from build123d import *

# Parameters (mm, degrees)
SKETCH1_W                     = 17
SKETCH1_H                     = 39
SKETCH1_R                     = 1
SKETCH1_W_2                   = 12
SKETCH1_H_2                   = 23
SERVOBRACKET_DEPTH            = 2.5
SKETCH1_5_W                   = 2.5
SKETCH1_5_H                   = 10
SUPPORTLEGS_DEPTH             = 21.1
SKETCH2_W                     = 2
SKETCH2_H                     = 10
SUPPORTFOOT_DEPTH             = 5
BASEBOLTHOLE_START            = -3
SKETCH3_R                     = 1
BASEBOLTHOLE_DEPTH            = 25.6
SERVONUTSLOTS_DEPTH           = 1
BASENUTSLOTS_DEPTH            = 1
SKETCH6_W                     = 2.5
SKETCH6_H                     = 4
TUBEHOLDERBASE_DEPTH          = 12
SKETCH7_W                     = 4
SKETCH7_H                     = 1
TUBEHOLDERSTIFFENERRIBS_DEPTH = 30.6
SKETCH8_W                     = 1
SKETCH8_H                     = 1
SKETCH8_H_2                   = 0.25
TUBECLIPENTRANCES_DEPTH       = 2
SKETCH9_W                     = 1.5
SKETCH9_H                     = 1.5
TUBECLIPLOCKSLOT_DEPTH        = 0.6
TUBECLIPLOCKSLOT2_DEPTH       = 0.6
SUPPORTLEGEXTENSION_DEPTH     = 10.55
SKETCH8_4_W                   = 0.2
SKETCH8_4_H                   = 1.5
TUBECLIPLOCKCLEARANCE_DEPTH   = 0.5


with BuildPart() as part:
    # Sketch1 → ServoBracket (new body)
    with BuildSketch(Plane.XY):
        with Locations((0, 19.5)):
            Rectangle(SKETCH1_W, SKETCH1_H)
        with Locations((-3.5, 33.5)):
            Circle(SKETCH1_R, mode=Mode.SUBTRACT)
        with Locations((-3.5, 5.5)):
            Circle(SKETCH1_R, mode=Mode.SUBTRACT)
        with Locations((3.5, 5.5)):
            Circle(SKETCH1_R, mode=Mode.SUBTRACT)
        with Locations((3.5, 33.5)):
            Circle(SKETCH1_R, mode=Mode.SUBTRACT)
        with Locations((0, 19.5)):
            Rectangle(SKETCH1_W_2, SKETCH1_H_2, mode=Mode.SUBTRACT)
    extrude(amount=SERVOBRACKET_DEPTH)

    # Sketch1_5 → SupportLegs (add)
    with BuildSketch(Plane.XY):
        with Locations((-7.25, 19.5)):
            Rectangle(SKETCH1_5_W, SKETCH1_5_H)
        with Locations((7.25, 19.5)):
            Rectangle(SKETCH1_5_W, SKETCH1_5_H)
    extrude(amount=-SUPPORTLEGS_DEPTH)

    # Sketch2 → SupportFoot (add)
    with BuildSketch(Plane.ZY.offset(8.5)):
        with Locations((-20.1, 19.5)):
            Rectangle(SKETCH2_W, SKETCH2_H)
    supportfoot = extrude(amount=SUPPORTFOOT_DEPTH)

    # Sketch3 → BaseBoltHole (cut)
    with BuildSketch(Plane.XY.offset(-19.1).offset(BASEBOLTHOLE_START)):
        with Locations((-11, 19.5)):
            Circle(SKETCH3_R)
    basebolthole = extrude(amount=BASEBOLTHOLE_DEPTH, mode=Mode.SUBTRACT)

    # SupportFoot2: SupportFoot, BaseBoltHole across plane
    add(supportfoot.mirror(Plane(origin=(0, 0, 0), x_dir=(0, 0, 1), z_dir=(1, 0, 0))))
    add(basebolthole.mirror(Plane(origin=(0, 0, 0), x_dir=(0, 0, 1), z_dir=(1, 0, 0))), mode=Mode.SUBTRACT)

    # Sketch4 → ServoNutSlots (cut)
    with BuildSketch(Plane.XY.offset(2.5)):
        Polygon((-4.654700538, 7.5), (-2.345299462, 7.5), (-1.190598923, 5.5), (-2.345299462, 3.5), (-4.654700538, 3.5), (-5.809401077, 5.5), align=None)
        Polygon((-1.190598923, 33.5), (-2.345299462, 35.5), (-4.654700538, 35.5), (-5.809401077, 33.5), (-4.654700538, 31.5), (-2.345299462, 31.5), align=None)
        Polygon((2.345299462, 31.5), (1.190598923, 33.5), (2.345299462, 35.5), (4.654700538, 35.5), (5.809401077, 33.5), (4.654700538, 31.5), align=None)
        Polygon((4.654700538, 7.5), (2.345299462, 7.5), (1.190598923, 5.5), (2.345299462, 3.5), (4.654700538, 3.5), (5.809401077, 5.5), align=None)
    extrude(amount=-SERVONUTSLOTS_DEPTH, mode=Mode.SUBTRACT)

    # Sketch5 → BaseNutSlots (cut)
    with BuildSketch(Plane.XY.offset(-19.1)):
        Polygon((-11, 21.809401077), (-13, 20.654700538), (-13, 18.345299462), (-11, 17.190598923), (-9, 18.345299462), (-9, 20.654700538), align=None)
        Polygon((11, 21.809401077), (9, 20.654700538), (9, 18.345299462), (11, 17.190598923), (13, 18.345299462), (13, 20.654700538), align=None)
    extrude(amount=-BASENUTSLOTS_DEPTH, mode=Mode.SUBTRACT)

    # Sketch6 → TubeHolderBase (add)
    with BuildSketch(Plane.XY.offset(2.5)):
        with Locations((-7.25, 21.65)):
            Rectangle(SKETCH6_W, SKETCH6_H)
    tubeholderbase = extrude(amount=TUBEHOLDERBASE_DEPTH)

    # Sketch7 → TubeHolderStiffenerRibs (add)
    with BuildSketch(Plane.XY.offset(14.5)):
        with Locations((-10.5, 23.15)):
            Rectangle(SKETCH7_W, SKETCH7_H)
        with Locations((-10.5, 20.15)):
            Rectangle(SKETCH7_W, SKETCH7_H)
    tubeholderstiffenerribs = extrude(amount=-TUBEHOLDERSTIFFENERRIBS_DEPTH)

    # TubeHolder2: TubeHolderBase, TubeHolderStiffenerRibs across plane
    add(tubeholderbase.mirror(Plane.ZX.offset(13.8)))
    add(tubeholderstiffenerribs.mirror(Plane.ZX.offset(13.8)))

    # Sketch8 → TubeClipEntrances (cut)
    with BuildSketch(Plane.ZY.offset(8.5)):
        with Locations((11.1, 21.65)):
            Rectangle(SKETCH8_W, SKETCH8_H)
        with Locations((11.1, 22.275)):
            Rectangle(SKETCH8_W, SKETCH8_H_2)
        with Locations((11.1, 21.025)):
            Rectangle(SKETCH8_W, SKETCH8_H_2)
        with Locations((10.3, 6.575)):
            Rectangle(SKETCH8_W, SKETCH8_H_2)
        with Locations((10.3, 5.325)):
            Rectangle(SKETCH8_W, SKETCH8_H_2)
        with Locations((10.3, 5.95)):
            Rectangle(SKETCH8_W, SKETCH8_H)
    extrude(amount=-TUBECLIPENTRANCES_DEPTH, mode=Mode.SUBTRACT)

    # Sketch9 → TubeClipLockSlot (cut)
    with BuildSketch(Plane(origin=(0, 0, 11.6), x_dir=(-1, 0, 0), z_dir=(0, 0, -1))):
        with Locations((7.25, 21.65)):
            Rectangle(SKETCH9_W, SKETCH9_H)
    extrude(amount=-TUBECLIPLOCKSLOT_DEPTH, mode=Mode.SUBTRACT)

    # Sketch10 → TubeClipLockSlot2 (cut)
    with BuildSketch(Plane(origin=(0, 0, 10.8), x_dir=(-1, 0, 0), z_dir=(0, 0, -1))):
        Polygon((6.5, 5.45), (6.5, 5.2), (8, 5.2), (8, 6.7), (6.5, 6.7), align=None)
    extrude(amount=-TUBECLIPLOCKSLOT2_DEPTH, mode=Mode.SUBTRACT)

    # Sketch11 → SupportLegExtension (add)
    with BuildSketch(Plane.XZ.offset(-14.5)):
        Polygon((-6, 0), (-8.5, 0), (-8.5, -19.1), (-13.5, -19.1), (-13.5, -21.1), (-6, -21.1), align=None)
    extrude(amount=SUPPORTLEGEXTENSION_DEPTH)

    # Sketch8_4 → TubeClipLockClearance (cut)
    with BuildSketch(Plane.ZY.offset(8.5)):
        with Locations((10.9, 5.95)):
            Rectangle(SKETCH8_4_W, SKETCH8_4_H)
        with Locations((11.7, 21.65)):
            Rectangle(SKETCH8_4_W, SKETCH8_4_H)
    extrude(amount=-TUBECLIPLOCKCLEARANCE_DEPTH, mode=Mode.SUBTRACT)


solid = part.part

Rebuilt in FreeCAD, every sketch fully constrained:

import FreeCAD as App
import Part
import Sketcher
Q = App.Units.Quantity

doc = App.newDocument("Part")
body = doc.addObject("PartDesign::Body", "Body")

# Sketch on XY plane
sketch1 = doc.addObject("Sketcher::SketchObject", "Sketch")
body.addObject(sketch1)
sketch1.AttachmentSupport = (doc.XY_Plane, [""])
sketch1.MapMode = "FlatFace"
sketch1.addGeometry([
    Part.LineSegment(App.Vector(-8.5, 39, 0), App.Vector(-8.5, 0, 0)),  # 0
    Part.LineSegment(App.Vector(-8.5, 0, 0), App.Vector(8.5, 0, 0)),  # 1
    Part.LineSegment(App.Vector(8.5, 0, 0), App.Vector(8.5, 39, 0)),  # 2
    Part.LineSegment(App.Vector(8.5, 39, 0), App.Vector(-8.5, 39, 0)),  # 3
    Part.Circle(App.Vector(-3.5, 5.5, 0), App.Vector(0, 0, 1), 1),  # 4
    Part.Circle(App.Vector(3.5, 5.5, 0), App.Vector(0, 0, 1), 1),  # 5
    Part.Circle(App.Vector(-3.5, 33.5, 0), App.Vector(0, 0, 1), 1),  # 6
    Part.LineSegment(App.Vector(6, 8, 0), App.Vector(-6, 8, 0)),  # 7
    Part.LineSegment(App.Vector(-6, 8, 0), App.Vector(-6, 31, 0)),  # 8
    Part.LineSegment(App.Vector(-6, 31, 0), App.Vector(6, 31, 0)),  # 9
    Part.LineSegment(App.Vector(6, 31, 0), App.Vector(6, 8, 0)),  # 10
    Part.Circle(App.Vector(3.5, 33.5, 0), App.Vector(0, 0, 1), 1),  # 11
], False)
sketch1.addConstraint([
    Sketcher.Constraint("Coincident", 0, 2, 1, 1),
    Sketcher.Constraint("Coincident", 1, 2, 2, 1),
    Sketcher.Constraint("Coincident", 2, 2, 3, 1),
    Sketcher.Constraint("Coincident", 3, 2, 0, 1),
    Sketcher.Constraint("Coincident", 7, 2, 8, 1),
    Sketcher.Constraint("Coincident", 8, 2, 9, 1),
    Sketcher.Constraint("Coincident", 9, 2, 10, 1),
    Sketcher.Constraint("Coincident", 10, 2, 7, 1),
    Sketcher.Constraint("Vertical", 0),
    Sketcher.Constraint("Horizontal", 1),
    Sketcher.Constraint("Vertical", 2),
    Sketcher.Constraint("Horizontal", 3),
    Sketcher.Constraint("Horizontal", 7),
    Sketcher.Constraint("Vertical", 8),
    Sketcher.Constraint("Horizontal", 9),
    Sketcher.Constraint("Vertical", 10),
    Sketcher.Constraint("Equal", 4, 5),
    Sketcher.Constraint("Equal", 5, 6),
    Sketcher.Constraint("Equal", 6, 11),
    Sketcher.Constraint("Symmetric", 0, 2, 1, 2, -1, 1),
    Sketcher.Constraint("Symmetric", 4, 3, 5, 3, -2),
    Sketcher.Constraint("Symmetric", 6, 3, 11, 3, -2),
    Sketcher.Constraint("Vertical", 4, 3, 6, 3),
    Sketcher.Constraint("Diameter", 4, Q("2 mm")),
    Sketcher.Constraint("DistanceX", 1, 1, 1, 2, Q("17 mm")),
    Sketcher.Constraint("DistanceX", 7, 2, 7, 1, Q("12 mm")),
    Sketcher.Constraint("DistanceY", 0, 2, 0, 1, Q("39 mm")),
    Sketcher.Constraint("DistanceY", 8, 1, 8, 2, Q("23 mm")),
    Sketcher.Constraint("DistanceX", 7, 2, -1, 1, Q("6 mm")),
    Sketcher.Constraint("DistanceY", -1, 1, 7, 2, Q("8 mm")),
    Sketcher.Constraint("DistanceX", 4, 3, 5, 3, Q("7 mm")),
    Sketcher.Constraint("DistanceY", 4, 3, 6, 3, Q("28 mm")),
    Sketcher.Constraint("DistanceY", -1, 1, 4, 3, Q("5.5 mm")),
])
pad1 = doc.addObject("PartDesign::Pad", "Pad")
body.addObject(pad1)
pad1.Profile = sketch1
pad1.Length = 2.5

# Sketch on XY plane
sketch2 = doc.addObject("Sketcher::SketchObject", "Sketch001")
body.addObject(sketch2)
sketch2.AttachmentSupport = (doc.XY_Plane, [""])
sketch2.MapMode = "FlatFace"
sketch2.addGeometry([
    Part.LineSegment(App.Vector(-8.5, 24.5, 0), App.Vector(-8.5, 14.5, 0)),  # 0
    Part.LineSegment(App.Vector(-8.5, 14.5, 0), App.Vector(-6, 14.5, 0)),  # 1
    Part.LineSegment(App.Vector(-6, 14.5, 0), App.Vector(-6, 24.5, 0)),  # 2
    Part.LineSegment(App.Vector(-6, 24.5, 0), App.Vector(-8.5, 24.5, 0)),  # 3
    Part.LineSegment(App.Vector(6, 24.5, 0), App.Vector(6, 14.5, 0)),  # 4
    Part.LineSegment(App.Vector(6, 14.5, 0), App.Vector(8.5, 14.5, 0)),  # 5
    Part.LineSegment(App.Vector(8.5, 14.5, 0), App.Vector(8.5, 24.5, 0)),  # 6
    Part.LineSegment(App.Vector(8.5, 24.5, 0), App.Vector(6, 24.5, 0)),  # 7
], False)
sketch2.addConstraint([
    Sketcher.Constraint("Coincident", 0, 2, 1, 1),
    Sketcher.Constraint("Coincident", 1, 2, 2, 1),
    Sketcher.Constraint("Coincident", 2, 2, 3, 1),
    Sketcher.Constraint("Coincident", 3, 2, 0, 1),
    Sketcher.Constraint("Coincident", 4, 2, 5, 1),
    Sketcher.Constraint("Coincident", 5, 2, 6, 1),
    Sketcher.Constraint("Coincident", 6, 2, 7, 1),
    Sketcher.Constraint("Coincident", 7, 2, 4, 1),
    Sketcher.Constraint("Vertical", 0),
    Sketcher.Constraint("Horizontal", 1),
    Sketcher.Constraint("Vertical", 2),
    Sketcher.Constraint("Horizontal", 3),
    Sketcher.Constraint("Vertical", 4),
    Sketcher.Constraint("Horizontal", 5),
    Sketcher.Constraint("Vertical", 6),
    Sketcher.Constraint("Horizontal", 7),
    Sketcher.Constraint("Symmetric", 1, 2, 4, 2, -2),
    Sketcher.Constraint("Symmetric", 3, 2, 6, 2, -2),
    Sketcher.Constraint("DistanceY", 0, 2, 0, 1, Q("10 mm")),
    Sketcher.Constraint("DistanceX", 1, 1, 1, 2, Q("2.5 mm")),
    Sketcher.Constraint("DistanceX", 1, 2, -1, 1, Q("6 mm")),
    Sketcher.Constraint("DistanceY", -1, 1, 0, 2, Q("14.5 mm")),
])
pad2 = doc.addObject("PartDesign::Pad", "Pad001")
body.addObject(pad2)
pad2.Profile = sketch2
pad2.Length = 21.1
pad2.Reversed = True

# Sketch on YZ plane
sketch3 = doc.addObject("Sketcher::SketchObject", "Sketch002")
body.addObject(sketch3)
sketch3.AttachmentSupport = (doc.YZ_Plane, [""])
sketch3.MapMode = "FlatFace"
sketch3.AttachmentOffset = App.Placement(App.Vector(0, 0, -8.5), App.Rotation())
sketch3.addGeometry([
    Part.LineSegment(App.Vector(24.5, -21.1, 0), App.Vector(14.5, -21.1, 0)),
    Part.LineSegment(App.Vector(14.5, -21.1, 0), App.Vector(14.5, -19.1, 0)),
    Part.LineSegment(App.Vector(14.5, -19.1, 0), App.Vector(24.5, -19.1, 0)),
    Part.LineSegment(App.Vector(24.5, -19.1, 0), App.Vector(24.5, -21.1, 0)),
], False)
sketch3.addConstraint([
    Sketcher.Constraint("Coincident", 0, 2, 1, 1),
    Sketcher.Constraint("Coincident", 1, 2, 2, 1),
    Sketcher.Constraint("Coincident", 2, 2, 3, 1),
    Sketcher.Constraint("Coincident", 3, 2, 0, 1),
    Sketcher.Constraint("Horizontal", 0),
    Sketcher.Constraint("Vertical", 1),
    Sketcher.Constraint("Horizontal", 2),
    Sketcher.Constraint("Vertical", 3),
    Sketcher.Constraint("DistanceX", 0, 2, 0, 1, Q("10 mm")),
    Sketcher.Constraint("DistanceY", 1, 1, 1, 2, Q("2 mm")),
    Sketcher.Constraint("DistanceX", -1, 1, 0, 2, Q("14.5 mm")),
    Sketcher.Constraint("DistanceY", 0, 2, -1, 1, Q("21.1 mm")),
])
pad3 = doc.addObject("PartDesign::Pad", "Pad002")
body.addObject(pad3)
pad3.Profile = sketch3
pad3.Length = 5
pad3.Reversed = True

# Sketch on XY plane
sketch4 = doc.addObject("Sketcher::SketchObject", "Sketch003")
body.addObject(sketch4)
sketch4.AttachmentSupport = (doc.XY_Plane, [""])
sketch4.MapMode = "FlatFace"
sketch4.AttachmentOffset = App.Placement(App.Vector(0, 0, -22.1), App.Rotation())
sketch4.addGeometry(Part.Circle(App.Vector(-11, 19.5, 0), App.Vector(0, 0, 1), 1), False)
sketch4.addConstraint([
    Sketcher.Constraint("Diameter", 0, Q("2 mm")),
    Sketcher.Constraint("DistanceX", 0, 3, -1, 1, Q("11 mm")),
    Sketcher.Constraint("DistanceY", -1, 1, 0, 3, Q("19.5 mm")),
])
pocket1 = doc.addObject("PartDesign::Pocket", "Pocket")
body.addObject(pocket1)
pocket1.Profile = sketch4
pocket1.Length = 25.6
pocket1.Reversed = True
doc.recompute()

mirrored = doc.addObject("PartDesign::Mirrored", "Mirrored")
body.addObject(mirrored)
mirrored.Originals = [pad3, pocket1]
mirrored.MirrorPlane = (doc.YZ_Plane, [""])
body.Tip = mirrored

# Sketch on XY plane
sketch5 = doc.addObject("Sketcher::SketchObject", "Sketch004")
body.addObject(sketch5)
sketch5.AttachmentSupport = (doc.XY_Plane, [""])
sketch5.MapMode = "FlatFace"
sketch5.AttachmentOffset = App.Placement(App.Vector(0, 0, 2.5), App.Rotation())
sketch5.addGeometry([
    Part.LineSegment(App.Vector(-2.345299, 7.5, 0), App.Vector(-4.654701, 7.5, 0)),  # 0
    Part.LineSegment(App.Vector(-4.654701, 7.5, 0), App.Vector(-5.809401, 5.5, 0)),  # 1
    Part.LineSegment(App.Vector(-5.809401, 5.5, 0), App.Vector(-4.654701, 3.5, 0)),  # 2
    Part.LineSegment(App.Vector(-4.654701, 3.5, 0), App.Vector(-2.345299, 3.5, 0)),  # 3
    Part.LineSegment(App.Vector(-2.345299, 3.5, 0), App.Vector(-1.190599, 5.5, 0)),  # 4
    Part.LineSegment(App.Vector(-1.190599, 5.5, 0), App.Vector(-2.345299, 7.5, 0)),  # 5
    Part.LineSegment(App.Vector(-1.190599, 33.5, 0), App.Vector(-2.345299, 35.5, 0)),  # 6
    Part.LineSegment(App.Vector(-2.345299, 35.5, 0), App.Vector(-4.654701, 35.5, 0)),  # 7
    Part.LineSegment(App.Vector(-4.654701, 35.5, 0), App.Vector(-5.809401, 33.5, 0)),  # 8
    Part.LineSegment(App.Vector(-5.809401, 33.5, 0), App.Vector(-4.654701, 31.5, 0)),  # 9
    Part.LineSegment(App.Vector(-4.654701, 31.5, 0), App.Vector(-2.345299, 31.5, 0)),  # 10
    Part.LineSegment(App.Vector(-2.345299, 31.5, 0), App.Vector(-1.190599, 33.5, 0)),  # 11
    Part.LineSegment(App.Vector(1.190599, 33.5, 0), App.Vector(2.345299, 31.5, 0)),  # 12
    Part.LineSegment(App.Vector(2.345299, 31.5, 0), App.Vector(4.654701, 31.5, 0)),  # 13
    Part.LineSegment(App.Vector(4.654701, 31.5, 0), App.Vector(5.809401, 33.5, 0)),  # 14
    Part.LineSegment(App.Vector(5.809401, 33.5, 0), App.Vector(4.654701, 35.5, 0)),  # 15
    Part.LineSegment(App.Vector(4.654701, 35.5, 0), App.Vector(2.345299, 35.5, 0)),  # 16
    Part.LineSegment(App.Vector(2.345299, 35.5, 0), App.Vector(1.190599, 33.5, 0)),  # 17
    Part.LineSegment(App.Vector(4.654701, 7.5, 0), App.Vector(2.345299, 7.5, 0)),  # 18
    Part.LineSegment(App.Vector(2.345299, 7.5, 0), App.Vector(1.190599, 5.5, 0)),  # 19
    Part.LineSegment(App.Vector(1.190599, 5.5, 0), App.Vector(2.345299, 3.5, 0)),  # 20
    Part.LineSegment(App.Vector(2.345299, 3.5, 0), App.Vector(4.654701, 3.5, 0)),  # 21
    Part.LineSegment(App.Vector(4.654701, 3.5, 0), App.Vector(5.809401, 5.5, 0)),  # 22
    Part.LineSegment(App.Vector(5.809401, 5.5, 0), App.Vector(4.654701, 7.5, 0)),  # 23
], False)
sketch5.addConstraint([
    Sketcher.Constraint("Coincident", 0, 2, 1, 1),
    Sketcher.Constraint("Coincident", 1, 2, 2, 1),
    Sketcher.Constraint("Coincident", 2, 2, 3, 1),
    Sketcher.Constraint("Coincident", 3, 2, 4, 1),
    Sketcher.Constraint("Coincident", 4, 2, 5, 1),
    Sketcher.Constraint("Coincident", 5, 2, 0, 1),
    Sketcher.Constraint("Coincident", 6, 2, 7, 1),
    Sketcher.Constraint("Coincident", 7, 2, 8, 1),
    Sketcher.Constraint("Coincident", 8, 2, 9, 1),
    Sketcher.Constraint("Coincident", 9, 2, 10, 1),
    Sketcher.Constraint("Coincident", 10, 2, 11, 1),
    Sketcher.Constraint("Coincident", 11, 2, 6, 1),
    Sketcher.Constraint("Coincident", 12, 2, 13, 1),
    Sketcher.Constraint("Coincident", 13, 2, 14, 1),
    Sketcher.Constraint("Coincident", 14, 2, 15, 1),
    Sketcher.Constraint("Coincident", 15, 2, 16, 1),
    Sketcher.Constraint("Coincident", 16, 2, 17, 1),
    Sketcher.Constraint("Coincident", 17, 2, 12, 1),
    Sketcher.Constraint("Coincident", 18, 2, 19, 1),
    Sketcher.Constraint("Coincident", 19, 2, 20, 1),
    Sketcher.Constraint("Coincident", 20, 2, 21, 1),
    Sketcher.Constraint("Coincident", 21, 2, 22, 1),
    Sketcher.Constraint("Coincident", 22, 2, 23, 1),
    Sketcher.Constraint("Coincident", 23, 2, 18, 1),
    Sketcher.Constraint("Horizontal", 0),
    Sketcher.Constraint("Horizontal", 3),
    Sketcher.Constraint("Horizontal", 7),
    Sketcher.Constraint("Horizontal", 10),
    Sketcher.Constraint("Horizontal", 13),
    Sketcher.Constraint("Horizontal", 16),
    Sketcher.Constraint("Horizontal", 18),
    Sketcher.Constraint("Horizontal", 21),
    Sketcher.Constraint("Symmetric", 10, 2, 12, 2, -2),
    Sketcher.Constraint("Symmetric", 8, 2, 14, 2, -2),
    Sketcher.Constraint("Symmetric", 7, 2, 15, 2, -2),
    Sketcher.Constraint("Symmetric", 11, 2, 17, 2, -2),
    Sketcher.Constraint("Symmetric", 5, 2, 18, 2, -2),
    Sketcher.Constraint("Symmetric", 4, 2, 19, 2, -2),
    Sketcher.Constraint("Symmetric", 3, 2, 20, 2, -2),
    Sketcher.Constraint("Symmetric", 1, 2, 22, 2, -2),
    Sketcher.Constraint("Parallel", 1, 4),
    Sketcher.Constraint("Parallel", 2, 5),
    Sketcher.Constraint("Parallel", 5, 6),
    Sketcher.Constraint("Parallel", 4, 8),
    Sketcher.Constraint("Parallel", 6, 9),
    Sketcher.Constraint("Parallel", 8, 11),
    Sketcher.Constraint("Parallel", 9, 12),
    Sketcher.Constraint("Parallel", 11, 14),
    Sketcher.Constraint("Parallel", 14, 17),
    Sketcher.Constraint("Parallel", 19, 22),
    Sketcher.Constraint("Parallel", 20, 23),
    Sketcher.Constraint("Horizontal", 1, 2, 4, 2),
    Sketcher.Constraint("Horizontal", 8, 2, 11, 2),
    Sketcher.Constraint("Vertical", 0, 2, 2, 2),
    Sketcher.Constraint("Vertical", 5, 2, 6, 2),
    Sketcher.Constraint("Vertical", 2, 2, 7, 2),
    Sketcher.Constraint("Vertical", 1, 2, 8, 2),
    Sketcher.Constraint("Vertical", 7, 2, 9, 2),
    Sketcher.Constraint("Angle", 1, Q("-120 deg")),
    Sketcher.Constraint("DistanceY", 1, 2, 0, 2, Q("2 mm")),
    Sketcher.Constraint("DistanceY", 5, 2, 6, 2, Q("28 mm")),
    Sketcher.Constraint("DistanceX", 9, 2, 12, 2, Q("7 mm")),
    Sketcher.Constraint("DistanceY", -1, 1, 0, 2, Q("7.5 mm")),
    Sketcher.Constraint("DistanceX", 0, 2, 0, 1, Q("2.309401 mm")),
])
pocket2 = doc.addObject("PartDesign::Pocket", "Pocket001")
body.addObject(pocket2)
pocket2.Profile = sketch5
pocket2.Length = 1

# Sketch on XY plane
sketch6 = doc.addObject("Sketcher::SketchObject", "Sketch005")
body.addObject(sketch6)
sketch6.AttachmentSupport = (doc.XY_Plane, [""])
sketch6.MapMode = "FlatFace"
sketch6.AttachmentOffset = App.Placement(App.Vector(0, 0, -19.1), App.Rotation())
sketch6.addGeometry([
    Part.LineSegment(App.Vector(-11, 21.809401, 0), App.Vector(-13, 20.654701, 0)),  # 0
    Part.LineSegment(App.Vector(-13, 20.654701, 0), App.Vector(-13, 18.345299, 0)),  # 1
    Part.LineSegment(App.Vector(-13, 18.345299, 0), App.Vector(-11, 17.190599, 0)),  # 2
    Part.LineSegment(App.Vector(-11, 17.190599, 0), App.Vector(-9, 18.345299, 0)),  # 3
    Part.LineSegment(App.Vector(-9, 18.345299, 0), App.Vector(-9, 20.654701, 0)),  # 4
    Part.LineSegment(App.Vector(-9, 20.654701, 0), App.Vector(-11, 21.809401, 0)),  # 5
    Part.LineSegment(App.Vector(11, 21.809401, 0), App.Vector(9, 20.654701, 0)),  # 6
    Part.LineSegment(App.Vector(9, 20.654701, 0), App.Vector(9, 18.345299, 0)),  # 7
    Part.LineSegment(App.Vector(9, 18.345299, 0), App.Vector(11, 17.190599, 0)),  # 8
    Part.LineSegment(App.Vector(11, 17.190599, 0), App.Vector(13, 18.345299, 0)),  # 9
    Part.LineSegment(App.Vector(13, 18.345299, 0), App.Vector(13, 20.654701, 0)),  # 10
    Part.LineSegment(App.Vector(13, 20.654701, 0), App.Vector(11, 21.809401, 0)),  # 11
], False)
sketch6.addConstraint([
    Sketcher.Constraint("Coincident", 0, 2, 1, 1),
    Sketcher.Constraint("Coincident", 1, 2, 2, 1),
    Sketcher.Constraint("Coincident", 2, 2, 3, 1),
    Sketcher.Constraint("Coincident", 3, 2, 4, 1),
    Sketcher.Constraint("Coincident", 4, 2, 5, 1),
    Sketcher.Constraint("Coincident", 5, 2, 0, 1),
    Sketcher.Constraint("Coincident", 6, 2, 7, 1),
    Sketcher.Constraint("Coincident", 7, 2, 8, 1),
    Sketcher.Constraint("Coincident", 8, 2, 9, 1),
    Sketcher.Constraint("Coincident", 9, 2, 10, 1),
    Sketcher.Constraint("Coincident", 10, 2, 11, 1),
    Sketcher.Constraint("Coincident", 11, 2, 6, 1),
    Sketcher.Constraint("Vertical", 1),
    Sketcher.Constraint("Vertical", 4),
    Sketcher.Constraint("Vertical", 7),
    Sketcher.Constraint("Vertical", 10),
    Sketcher.Constraint("Symmetric", 4, 2, 6, 2, -2),
    Sketcher.Constraint("Symmetric", 2, 2, 8, 2, -2),
    Sketcher.Constraint("Symmetric", 1, 2, 9, 2, -2),
    Sketcher.Constraint("Symmetric", 5, 2, 11, 2, -2),
    Sketcher.Constraint("Parallel", 0, 3),
    Sketcher.Constraint("Parallel", 2, 5),
    Sketcher.Constraint("Parallel", 3, 6),
    Sketcher.Constraint("Parallel", 5, 8),
    Sketcher.Constraint("Parallel", 8, 11),
    Sketcher.Constraint("Horizontal", 1, 2, 3, 2),
    Sketcher.Constraint("Horizontal", 0, 2, 4, 2),
    Sketcher.Constraint("Angle", 0, Q("-150 deg")),
    Sketcher.Constraint("DistanceX", 0, 2, -1, 1, Q("13 mm")),
    Sketcher.Constraint("DistanceX", 2, 2, -1, 1, Q("11 mm")),
    Sketcher.Constraint("DistanceY", 1, 2, 1, 1, Q("2.309401 mm")),
    Sketcher.Constraint("DistanceY", -1, 1, 0, 2, Q("20.654701 mm")),
])
pocket3 = doc.addObject("PartDesign::Pocket", "Pocket002")
body.addObject(pocket3)
pocket3.Profile = sketch6
pocket3.Length = 1

# Sketch on XY plane
sketch7 = doc.addObject("Sketcher::SketchObject", "Sketch006")
body.addObject(sketch7)
sketch7.AttachmentSupport = (doc.XY_Plane, [""])
sketch7.MapMode = "FlatFace"
sketch7.AttachmentOffset = App.Placement(App.Vector(0, 0, 2.5), App.Rotation())
sketch7.addGeometry([
    Part.LineSegment(App.Vector(-8.5, 23.65, 0), App.Vector(-8.5, 19.65, 0)),
    Part.LineSegment(App.Vector(-8.5, 19.65, 0), App.Vector(-6, 19.65, 0)),
    Part.LineSegment(App.Vector(-6, 19.65, 0), App.Vector(-6, 23.65, 0)),
    Part.LineSegment(App.Vector(-6, 23.65, 0), App.Vector(-8.5, 23.65, 0)),
], False)
sketch7.addConstraint([
    Sketcher.Constraint("Coincident", 0, 2, 1, 1),
    Sketcher.Constraint("Coincident", 1, 2, 2, 1),
    Sketcher.Constraint("Coincident", 2, 2, 3, 1),
    Sketcher.Constraint("Coincident", 3, 2, 0, 1),
    Sketcher.Constraint("Vertical", 0),
    Sketcher.Constraint("Horizontal", 1),
    Sketcher.Constraint("Vertical", 2),
    Sketcher.Constraint("Horizontal", 3),
    Sketcher.Constraint("DistanceY", 0, 2, 0, 1, Q("4 mm")),
    Sketcher.Constraint("DistanceX", 1, 1, 1, 2, Q("2.5 mm")),
    Sketcher.Constraint("DistanceX", 1, 2, -1, 1, Q("6 mm")),
    Sketcher.Constraint("DistanceY", -1, 1, 0, 2, Q("19.65 mm")),
])
pad4 = doc.addObject("PartDesign::Pad", "Pad003")
body.addObject(pad4)
pad4.Profile = sketch7
pad4.Length = 12

# Sketch on XY plane
sketch8 = doc.addObject("Sketcher::SketchObject", "Sketch007")
body.addObject(sketch8)
sketch8.AttachmentSupport = (doc.XY_Plane, [""])
sketch8.MapMode = "FlatFace"
sketch8.AttachmentOffset = App.Placement(App.Vector(0, 0, 14.5), App.Rotation())
sketch8.addGeometry([
    Part.LineSegment(App.Vector(-12.5, 23.65, 0), App.Vector(-12.5, 22.65, 0)),  # 0
    Part.LineSegment(App.Vector(-12.5, 22.65, 0), App.Vector(-8.5, 22.65, 0)),  # 1
    Part.LineSegment(App.Vector(-8.5, 22.65, 0), App.Vector(-8.5, 23.65, 0)),  # 2
    Part.LineSegment(App.Vector(-8.5, 23.65, 0), App.Vector(-12.5, 23.65, 0)),  # 3
    Part.LineSegment(App.Vector(-12.5, 20.65, 0), App.Vector(-12.5, 19.65, 0)),  # 4
    Part.LineSegment(App.Vector(-12.5, 19.65, 0), App.Vector(-8.5, 19.65, 0)),  # 5
    Part.LineSegment(App.Vector(-8.5, 19.65, 0), App.Vector(-8.5, 20.65, 0)),  # 6
    Part.LineSegment(App.Vector(-8.5, 20.65, 0), App.Vector(-12.5, 20.65, 0)),  # 7
], False)
sketch8.addConstraint([
    Sketcher.Constraint("Coincident", 0, 2, 1, 1),
    Sketcher.Constraint("Coincident", 1, 2, 2, 1),
    Sketcher.Constraint("Coincident", 2, 2, 3, 1),
    Sketcher.Constraint("Coincident", 3, 2, 0, 1),
    Sketcher.Constraint("Coincident", 4, 2, 5, 1),
    Sketcher.Constraint("Coincident", 5, 2, 6, 1),
    Sketcher.Constraint("Coincident", 6, 2, 7, 1),
    Sketcher.Constraint("Coincident", 7, 2, 4, 1),
    Sketcher.Constraint("Vertical", 0),
    Sketcher.Constraint("Horizontal", 1),
    Sketcher.Constraint("Vertical", 2),
    Sketcher.Constraint("Horizontal", 3),
    Sketcher.Constraint("Vertical", 4),
    Sketcher.Constraint("Horizontal", 5),
    Sketcher.Constraint("Vertical", 6),
    Sketcher.Constraint("Horizontal", 7),
    Sketcher.Constraint("Vertical", 3, 2, 4, 2),
    Sketcher.Constraint("Vertical", 2, 2, 5, 2),
    Sketcher.Constraint("Equal", 2, 4),
    Sketcher.Constraint("DistanceX", 1, 1, 1, 2, Q("4 mm")),
    Sketcher.Constraint("DistanceY", 0, 2, 0, 1, Q("1 mm")),
    Sketcher.Constraint("DistanceY", 4, 2, 0, 2, Q("3 mm")),
    Sketcher.Constraint("DistanceX", 0, 2, -1, 1, Q("12.5 mm")),
    Sketcher.Constraint("DistanceY", -1, 1, 0, 2, Q("22.65 mm")),
])
pad5 = doc.addObject("PartDesign::Pad", "Pad004")
body.addObject(pad5)
pad5.Profile = sketch8
pad5.Length = 30.6
pad5.Reversed = True
doc.recompute()

datumplane = doc.addObject("PartDesign::Plane", "DatumPlane")
body.addObject(datumplane)
datumplane.AttachmentSupport = (doc.XZ_Plane, [""])
datumplane.MapMode = "FlatFace"
datumplane.AttachmentOffset = App.Placement(App.Vector(0, 0, -13.8), App.Rotation())
mirrored2 = doc.addObject("PartDesign::Mirrored", "Mirrored001")
body.addObject(mirrored2)
mirrored2.Originals = [pad4, pad5]
mirrored2.MirrorPlane = (datumplane, [""])
body.Tip = mirrored2

# Sketch on YZ plane
sketch9 = doc.addObject("Sketcher::SketchObject", "Sketch008")
body.addObject(sketch9)
sketch9.AttachmentSupport = (doc.YZ_Plane, [""])
sketch9.MapMode = "FlatFace"
sketch9.AttachmentOffset = App.Placement(App.Vector(0, 0, -8.5), App.Rotation())
sketch9.addGeometry([
    Part.LineSegment(App.Vector(22.4, 11.6, 0), App.Vector(22.4, 10.6, 0)),  # 0
    Part.LineSegment(App.Vector(22.4, 10.6, 0), App.Vector(20.9, 10.6, 0)),  # 1
    Part.LineSegment(App.Vector(20.9, 10.6, 0), App.Vector(20.9, 11.6, 0)),  # 2
    Part.LineSegment(App.Vector(20.9, 11.6, 0), App.Vector(22.4, 11.6, 0)),  # 3
    Part.LineSegment(App.Vector(6.7, 9.8, 0), App.Vector(5.2, 9.8, 0)),  # 4
    Part.LineSegment(App.Vector(5.2, 9.8, 0), App.Vector(5.2, 10.8, 0)),  # 5
    Part.LineSegment(App.Vector(5.2, 10.8, 0), App.Vector(6.7, 10.8, 0)),  # 6
    Part.LineSegment(App.Vector(6.7, 10.8, 0), App.Vector(6.7, 9.8, 0)),  # 7
], False)
sketch9.addConstraint([
    Sketcher.Constraint("Coincident", 0, 2, 1, 1),
    Sketcher.Constraint("Coincident", 1, 2, 2, 1),
    Sketcher.Constraint("Coincident", 2, 2, 3, 1),
    Sketcher.Constraint("Coincident", 3, 2, 0, 1),
    Sketcher.Constraint("Coincident", 4, 2, 5, 1),
    Sketcher.Constraint("Coincident", 5, 2, 6, 1),
    Sketcher.Constraint("Coincident", 6, 2, 7, 1),
    Sketcher.Constraint("Coincident", 7, 2, 4, 1),
    Sketcher.Constraint("Vertical", 0),
    Sketcher.Constraint("Horizontal", 1),
    Sketcher.Constraint("Vertical", 2),
    Sketcher.Constraint("Horizontal", 3),
    Sketcher.Constraint("Horizontal", 4),
    Sketcher.Constraint("Vertical", 5),
    Sketcher.Constraint("Horizontal", 6),
    Sketcher.Constraint("Vertical", 7),
    Sketcher.Constraint("Equal", 3, 4),
    Sketcher.Constraint("Equal", 2, 5),
    Sketcher.Constraint("DistanceY", 0, 2, 0, 1, Q("1 mm")),
    Sketcher.Constraint("DistanceX", 1, 2, 1, 1, Q("1.5 mm")),
    Sketcher.Constraint("DistanceX", -1, 1, 0, 2, Q("22.4 mm")),
    Sketcher.Constraint("DistanceY", -1, 1, 0, 2, Q("10.6 mm")),
    Sketcher.Constraint("DistanceX", -1, 1, 4, 2, Q("5.2 mm")),
    Sketcher.Constraint("DistanceY", -1, 1, 4, 2, Q("9.8 mm")),
])
pocket4 = doc.addObject("PartDesign::Pocket", "Pocket003")
body.addObject(pocket4)
pocket4.Profile = sketch9
pocket4.Length = 2
pocket4.Reversed = True

# Sketch on XY plane
sketch10 = doc.addObject("Sketcher::SketchObject", "Sketch009")
body.addObject(sketch10)
sketch10.AttachmentSupport = (doc.XY_Plane, [""])
sketch10.MapMode = "FlatFace"
sketch10.AttachmentOffset = App.Placement(App.Vector(0, 0, 11.6), App.Rotation())
sketch10.addGeometry([
    Part.LineSegment(App.Vector(-6.5, 22.4, 0), App.Vector(-6.5, 20.9, 0)),
    Part.LineSegment(App.Vector(-6.5, 20.9, 0), App.Vector(-8, 20.9, 0)),
    Part.LineSegment(App.Vector(-8, 20.9, 0), App.Vector(-8, 22.4, 0)),
    Part.LineSegment(App.Vector(-8, 22.4, 0), App.Vector(-6.5, 22.4, 0)),
], False)
sketch10.addConstraint([
    Sketcher.Constraint("Coincident", 0, 2, 1, 1),
    Sketcher.Constraint("Coincident", 1, 2, 2, 1),
    Sketcher.Constraint("Coincident", 2, 2, 3, 1),
    Sketcher.Constraint("Coincident", 3, 2, 0, 1),
    Sketcher.Constraint("Vertical", 0),
    Sketcher.Constraint("Horizontal", 1),
    Sketcher.Constraint("Vertical", 2),
    Sketcher.Constraint("Horizontal", 3),
    Sketcher.Constraint("Equal", 3, 0),
    Sketcher.Constraint("DistanceX", 1, 2, 1, 1, Q("1.5 mm")),
    Sketcher.Constraint("DistanceX", 1, 2, -1, 1, Q("8 mm")),
    Sketcher.Constraint("DistanceY", -1, 1, 0, 2, Q("20.9 mm")),
])
pocket5 = doc.addObject("PartDesign::Pocket", "Pocket004")
body.addObject(pocket5)
pocket5.Profile = sketch10
pocket5.Length = 0.6
pocket5.Reversed = True

# Sketch on XY plane
sketch11 = doc.addObject("Sketcher::SketchObject", "Sketch010")
body.addObject(sketch11)
sketch11.AttachmentSupport = (doc.XY_Plane, [""])
sketch11.MapMode = "FlatFace"
sketch11.AttachmentOffset = App.Placement(App.Vector(0, 0, 10.8), App.Rotation())
sketch11.addGeometry([
    Part.LineSegment(App.Vector(-6.5, 5.2, 0), App.Vector(-8, 5.2, 0)),
    Part.LineSegment(App.Vector(-8, 5.2, 0), App.Vector(-8, 6.7, 0)),
    Part.LineSegment(App.Vector(-8, 6.7, 0), App.Vector(-6.5, 6.7, 0)),
    Part.LineSegment(App.Vector(-6.5, 6.7, 0), App.Vector(-6.5, 5.2, 0)),
], False)
sketch11.addConstraint([
    Sketcher.Constraint("Coincident", 0, 2, 1, 1),
    Sketcher.Constraint("Coincident", 1, 2, 2, 1),
    Sketcher.Constraint("Coincident", 2, 2, 3, 1),
    Sketcher.Constraint("Coincident", 3, 2, 0, 1),
    Sketcher.Constraint("Horizontal", 0),
    Sketcher.Constraint("Vertical", 1),
    Sketcher.Constraint("Horizontal", 2),
    Sketcher.Constraint("Vertical", 3),
    Sketcher.Constraint("Equal", 2, 1),
    Sketcher.Constraint("DistanceX", 0, 2, 0, 1, Q("1.5 mm")),
    Sketcher.Constraint("DistanceX", 0, 2, -1, 1, Q("8 mm")),
    Sketcher.Constraint("DistanceY", -1, 1, 0, 2, Q("5.2 mm")),
])
pocket6 = doc.addObject("PartDesign::Pocket", "Pocket005")
body.addObject(pocket6)
pocket6.Profile = sketch11
pocket6.Length = 0.6
pocket6.Reversed = True

# Sketch on XZ plane
sketch12 = doc.addObject("Sketcher::SketchObject", "Sketch011")
body.addObject(sketch12)
sketch12.AttachmentSupport = (doc.XZ_Plane, [""])
sketch12.MapMode = "FlatFace"
sketch12.AttachmentOffset = App.Placement(App.Vector(0, 0, -14.5), App.Rotation())
sketch12.addGeometry([
    Part.LineSegment(App.Vector(-6, 0, 0), App.Vector(-8.5, 0, 0)),  # 0
    Part.LineSegment(App.Vector(-8.5, 0, 0), App.Vector(-8.5, -19.1, 0)),  # 1
    Part.LineSegment(App.Vector(-8.5, -19.1, 0), App.Vector(-13.5, -19.1, 0)),  # 2
    Part.LineSegment(App.Vector(-13.5, -19.1, 0), App.Vector(-13.5, -21.1, 0)),  # 3
    Part.LineSegment(App.Vector(-13.5, -21.1, 0), App.Vector(-6, -21.1, 0)),  # 4
    Part.LineSegment(App.Vector(-6, -21.1, 0), App.Vector(-6, 0, 0)),  # 5
], False)
sketch12.addConstraint([
    Sketcher.Constraint("Coincident", 0, 2, 1, 1),
    Sketcher.Constraint("Coincident", 1, 2, 2, 1),
    Sketcher.Constraint("Coincident", 2, 2, 3, 1),
    Sketcher.Constraint("Coincident", 3, 2, 4, 1),
    Sketcher.Constraint("Coincident", 4, 2, 5, 1),
    Sketcher.Constraint("Coincident", 5, 2, 0, 1),
    Sketcher.Constraint("Horizontal", 0),
    Sketcher.Constraint("Vertical", 1),
    Sketcher.Constraint("Horizontal", 2),
    Sketcher.Constraint("Vertical", 3),
    Sketcher.Constraint("Horizontal", 4),
    Sketcher.Constraint("Vertical", 5),
    Sketcher.Constraint("PointOnObject", 0, 2, -1),
    Sketcher.Constraint("DistanceX", 2, 2, 2, 1, Q("5 mm")),
    Sketcher.Constraint("DistanceY", 3, 2, 3, 1, Q("2 mm")),
    Sketcher.Constraint("DistanceX", 0, 2, 0, 1, Q("2.5 mm")),
    Sketcher.Constraint("DistanceY", 1, 2, 1, 1, Q("19.1 mm")),
    Sketcher.Constraint("DistanceX", 4, 2, -1, 1, Q("6 mm")),
])
pad6 = doc.addObject("PartDesign::Pad", "Pad005")
body.addObject(pad6)
pad6.Profile = sketch12
pad6.Length = 10.55

# Sketch on YZ plane
sketch13 = doc.addObject("Sketcher::SketchObject", "Sketch012")
body.addObject(sketch13)
sketch13.AttachmentSupport = (doc.YZ_Plane, [""])
sketch13.MapMode = "FlatFace"
sketch13.AttachmentOffset = App.Placement(App.Vector(0, 0, -8.5), App.Rotation())
sketch13.addGeometry([
    Part.LineSegment(App.Vector(6.7, 10.8, 0), App.Vector(5.2, 10.8, 0)),  # 0
    Part.LineSegment(App.Vector(5.2, 10.8, 0), App.Vector(5.2, 11, 0)),  # 1
    Part.LineSegment(App.Vector(5.2, 11, 0), App.Vector(6.7, 11, 0)),  # 2
    Part.LineSegment(App.Vector(6.7, 11, 0), App.Vector(6.7, 10.8, 0)),  # 3
    Part.LineSegment(App.Vector(22.4, 11.6, 0), App.Vector(20.9, 11.6, 0)),  # 4
    Part.LineSegment(App.Vector(20.9, 11.6, 0), App.Vector(20.9, 11.8, 0)),  # 5
    Part.LineSegment(App.Vector(20.9, 11.8, 0), App.Vector(22.4, 11.8, 0)),  # 6
    Part.LineSegment(App.Vector(22.4, 11.8, 0), App.Vector(22.4, 11.6, 0)),  # 7
], False)
sketch13.addConstraint([
    Sketcher.Constraint("Coincident", 0, 2, 1, 1),
    Sketcher.Constraint("Coincident", 1, 2, 2, 1),
    Sketcher.Constraint("Coincident", 2, 2, 3, 1),
    Sketcher.Constraint("Coincident", 3, 2, 0, 1),
    Sketcher.Constraint("Coincident", 4, 2, 5, 1),
    Sketcher.Constraint("Coincident", 5, 2, 6, 1),
    Sketcher.Constraint("Coincident", 6, 2, 7, 1),
    Sketcher.Constraint("Coincident", 7, 2, 4, 1),
    Sketcher.Constraint("Horizontal", 0),
    Sketcher.Constraint("Vertical", 1),
    Sketcher.Constraint("Horizontal", 2),
    Sketcher.Constraint("Vertical", 3),
    Sketcher.Constraint("Horizontal", 4),
    Sketcher.Constraint("Vertical", 5),
    Sketcher.Constraint("Horizontal", 6),
    Sketcher.Constraint("Vertical", 7),
    Sketcher.Constraint("Equal", 2, 4),
    Sketcher.Constraint("Equal", 3, 5),
    Sketcher.Constraint("DistanceX", 0, 2, 0, 1, Q("1.5 mm")),
    Sketcher.Constraint("DistanceY", 1, 1, 1, 2, Q("0.2 mm")),
    Sketcher.Constraint("DistanceY", -1, 1, 1, 2, Q("11 mm")),
    Sketcher.Constraint("DistanceY", 3, 2, 5, 2, Q("1 mm")),
    Sketcher.Constraint("DistanceX", -1, 1, 0, 2, Q("5.2 mm")),
    Sketcher.Constraint("DistanceX", -1, 1, 4, 2, Q("20.9 mm")),
])
pocket7 = doc.addObject("PartDesign::Pocket", "Pocket006")
body.addObject(pocket7)
pocket7.Profile = sketch13
pocket7.Length = 0.5
pocket7.Reversed = True

doc.recompute()
